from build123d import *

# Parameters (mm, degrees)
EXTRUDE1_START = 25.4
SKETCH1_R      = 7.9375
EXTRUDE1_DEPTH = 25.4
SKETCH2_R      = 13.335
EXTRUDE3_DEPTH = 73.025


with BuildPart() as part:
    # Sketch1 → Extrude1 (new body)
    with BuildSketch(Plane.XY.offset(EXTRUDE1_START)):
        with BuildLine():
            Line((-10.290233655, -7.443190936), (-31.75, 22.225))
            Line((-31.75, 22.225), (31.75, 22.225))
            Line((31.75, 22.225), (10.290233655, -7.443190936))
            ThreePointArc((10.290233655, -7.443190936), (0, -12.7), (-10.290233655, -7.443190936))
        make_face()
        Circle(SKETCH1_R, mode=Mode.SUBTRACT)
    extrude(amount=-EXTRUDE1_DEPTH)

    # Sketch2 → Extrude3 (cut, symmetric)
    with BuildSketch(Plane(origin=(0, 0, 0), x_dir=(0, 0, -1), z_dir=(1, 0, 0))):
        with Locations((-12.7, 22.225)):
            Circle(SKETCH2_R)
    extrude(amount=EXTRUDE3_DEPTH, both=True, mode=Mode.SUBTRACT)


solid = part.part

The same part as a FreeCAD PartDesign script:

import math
import FreeCAD as App
import Part
import Sketcher
Q = App.Units.Quantity

doc = App.newDocument("Part")
body = doc.addObject("PartDesign::Body", "Body")

sketch1 = doc.addObject("Sketcher::SketchObject", "Sketch")
body.addObject(sketch1)
sketch1.AttachmentSupport = (doc.XY_Plane, [""])
sketch1.MapMode = "FlatFace"
sketch1.AttachmentOffset = App.Placement(App.Vector(0, 0, 1 * 25.4), App.Rotation())
sketch1.addGeometry(Part.LineSegment(App.Vector(-32, 22, 0), App.Vector(-10, -7, 0)), False)
sketch1.addGeometry(Part.ArcOfCircle(Part.Circle(App.Vector(0, 0, 0), App.Vector(0, 0, 1), 13), math.radians(-144), math.radians(-36)), False)
sketch1.addGeometry(Part.LineSegment(App.Vector(10, -7, 0), App.Vector(32, 22, 0)), False)
sketch1.addGeometry(Part.LineSegment(App.Vector(32, 22, 0), App.Vector(-32, 22, 0)), False)
sketch1.addGeometry(Part.Circle(App.Vector(0, 0, 0), App.Vector(0, 0, 1), 8), False)
sketch1.addConstraint(Sketcher.Constraint("Tangent", 0, 2, 1, 1))
sketch1.addConstraint(Sketcher.Constraint("Tangent", 1, 2, 2, 1))
sketch1.addConstraint(Sketcher.Constraint("Coincident", 2, 2, 3, 1))
sketch1.addConstraint(Sketcher.Constraint("Coincident", 3, 2, 0, 1))
sketch1.addConstraint(Sketcher.Constraint("Horizontal", 3))
sketch1.addConstraint(Sketcher.Constraint("Coincident", 1, 3, -1, 1))
sketch1.addConstraint(Sketcher.Constraint("Coincident", 4, 3, -1, 1))
sketch1.addConstraint(Sketcher.Constraint("Horizontal", 0, 2, 1, 2))
sketch1.addConstraint(Sketcher.Constraint("Radius", 1, Q("0.5 in")))
sketch1.addConstraint(Sketcher.Constraint("Diameter", 4, Q("0.625 in")))
sketch1.addConstraint(Sketcher.Constraint("DistanceX", 3, 2, 3, 1, Q("2.5 in")))
sketch1.addConstraint(Sketcher.Constraint("DistanceY", -1, 1, 2, 2, Q("0.875 in")))
pad1 = doc.addObject("PartDesign::Pad", "Pad")
body.addObject(pad1)
pad1.Profile = sketch1
pad1.Length = Q("1 in")
pad1.Reversed = True

sketch2 = doc.addObject("Sketcher::SketchObject", "Sketch001")
body.addObject(sketch2)
sketch2.AttachmentSupport = (doc.YZ_Plane, [""])
sketch2.MapMode = "FlatFace"
sketch2.addGeometry(Part.Circle(App.Vector(22, 13, 0), App.Vector(0, 0, 1), 13), False)
sketch2.addConstraint(Sketcher.Constraint("Diameter", 0, Q("1.05 in")))
sketch2.addConstraint(Sketcher.Constraint("DistanceY", -1, 1, 0, 3, Q("0.5 in")))
sketch2.addConstraint(Sketcher.Constraint("DistanceX", -1, 1, 0, 3, Q("0.875 in")))
pocket1 = doc.addObject("PartDesign::Pocket", "Pocket")
body.addObject(pocket1)
pocket1.Profile = sketch2
pocket1.Length = Q("5.75 in")
pocket1.Midplane = True

doc.recompute()
